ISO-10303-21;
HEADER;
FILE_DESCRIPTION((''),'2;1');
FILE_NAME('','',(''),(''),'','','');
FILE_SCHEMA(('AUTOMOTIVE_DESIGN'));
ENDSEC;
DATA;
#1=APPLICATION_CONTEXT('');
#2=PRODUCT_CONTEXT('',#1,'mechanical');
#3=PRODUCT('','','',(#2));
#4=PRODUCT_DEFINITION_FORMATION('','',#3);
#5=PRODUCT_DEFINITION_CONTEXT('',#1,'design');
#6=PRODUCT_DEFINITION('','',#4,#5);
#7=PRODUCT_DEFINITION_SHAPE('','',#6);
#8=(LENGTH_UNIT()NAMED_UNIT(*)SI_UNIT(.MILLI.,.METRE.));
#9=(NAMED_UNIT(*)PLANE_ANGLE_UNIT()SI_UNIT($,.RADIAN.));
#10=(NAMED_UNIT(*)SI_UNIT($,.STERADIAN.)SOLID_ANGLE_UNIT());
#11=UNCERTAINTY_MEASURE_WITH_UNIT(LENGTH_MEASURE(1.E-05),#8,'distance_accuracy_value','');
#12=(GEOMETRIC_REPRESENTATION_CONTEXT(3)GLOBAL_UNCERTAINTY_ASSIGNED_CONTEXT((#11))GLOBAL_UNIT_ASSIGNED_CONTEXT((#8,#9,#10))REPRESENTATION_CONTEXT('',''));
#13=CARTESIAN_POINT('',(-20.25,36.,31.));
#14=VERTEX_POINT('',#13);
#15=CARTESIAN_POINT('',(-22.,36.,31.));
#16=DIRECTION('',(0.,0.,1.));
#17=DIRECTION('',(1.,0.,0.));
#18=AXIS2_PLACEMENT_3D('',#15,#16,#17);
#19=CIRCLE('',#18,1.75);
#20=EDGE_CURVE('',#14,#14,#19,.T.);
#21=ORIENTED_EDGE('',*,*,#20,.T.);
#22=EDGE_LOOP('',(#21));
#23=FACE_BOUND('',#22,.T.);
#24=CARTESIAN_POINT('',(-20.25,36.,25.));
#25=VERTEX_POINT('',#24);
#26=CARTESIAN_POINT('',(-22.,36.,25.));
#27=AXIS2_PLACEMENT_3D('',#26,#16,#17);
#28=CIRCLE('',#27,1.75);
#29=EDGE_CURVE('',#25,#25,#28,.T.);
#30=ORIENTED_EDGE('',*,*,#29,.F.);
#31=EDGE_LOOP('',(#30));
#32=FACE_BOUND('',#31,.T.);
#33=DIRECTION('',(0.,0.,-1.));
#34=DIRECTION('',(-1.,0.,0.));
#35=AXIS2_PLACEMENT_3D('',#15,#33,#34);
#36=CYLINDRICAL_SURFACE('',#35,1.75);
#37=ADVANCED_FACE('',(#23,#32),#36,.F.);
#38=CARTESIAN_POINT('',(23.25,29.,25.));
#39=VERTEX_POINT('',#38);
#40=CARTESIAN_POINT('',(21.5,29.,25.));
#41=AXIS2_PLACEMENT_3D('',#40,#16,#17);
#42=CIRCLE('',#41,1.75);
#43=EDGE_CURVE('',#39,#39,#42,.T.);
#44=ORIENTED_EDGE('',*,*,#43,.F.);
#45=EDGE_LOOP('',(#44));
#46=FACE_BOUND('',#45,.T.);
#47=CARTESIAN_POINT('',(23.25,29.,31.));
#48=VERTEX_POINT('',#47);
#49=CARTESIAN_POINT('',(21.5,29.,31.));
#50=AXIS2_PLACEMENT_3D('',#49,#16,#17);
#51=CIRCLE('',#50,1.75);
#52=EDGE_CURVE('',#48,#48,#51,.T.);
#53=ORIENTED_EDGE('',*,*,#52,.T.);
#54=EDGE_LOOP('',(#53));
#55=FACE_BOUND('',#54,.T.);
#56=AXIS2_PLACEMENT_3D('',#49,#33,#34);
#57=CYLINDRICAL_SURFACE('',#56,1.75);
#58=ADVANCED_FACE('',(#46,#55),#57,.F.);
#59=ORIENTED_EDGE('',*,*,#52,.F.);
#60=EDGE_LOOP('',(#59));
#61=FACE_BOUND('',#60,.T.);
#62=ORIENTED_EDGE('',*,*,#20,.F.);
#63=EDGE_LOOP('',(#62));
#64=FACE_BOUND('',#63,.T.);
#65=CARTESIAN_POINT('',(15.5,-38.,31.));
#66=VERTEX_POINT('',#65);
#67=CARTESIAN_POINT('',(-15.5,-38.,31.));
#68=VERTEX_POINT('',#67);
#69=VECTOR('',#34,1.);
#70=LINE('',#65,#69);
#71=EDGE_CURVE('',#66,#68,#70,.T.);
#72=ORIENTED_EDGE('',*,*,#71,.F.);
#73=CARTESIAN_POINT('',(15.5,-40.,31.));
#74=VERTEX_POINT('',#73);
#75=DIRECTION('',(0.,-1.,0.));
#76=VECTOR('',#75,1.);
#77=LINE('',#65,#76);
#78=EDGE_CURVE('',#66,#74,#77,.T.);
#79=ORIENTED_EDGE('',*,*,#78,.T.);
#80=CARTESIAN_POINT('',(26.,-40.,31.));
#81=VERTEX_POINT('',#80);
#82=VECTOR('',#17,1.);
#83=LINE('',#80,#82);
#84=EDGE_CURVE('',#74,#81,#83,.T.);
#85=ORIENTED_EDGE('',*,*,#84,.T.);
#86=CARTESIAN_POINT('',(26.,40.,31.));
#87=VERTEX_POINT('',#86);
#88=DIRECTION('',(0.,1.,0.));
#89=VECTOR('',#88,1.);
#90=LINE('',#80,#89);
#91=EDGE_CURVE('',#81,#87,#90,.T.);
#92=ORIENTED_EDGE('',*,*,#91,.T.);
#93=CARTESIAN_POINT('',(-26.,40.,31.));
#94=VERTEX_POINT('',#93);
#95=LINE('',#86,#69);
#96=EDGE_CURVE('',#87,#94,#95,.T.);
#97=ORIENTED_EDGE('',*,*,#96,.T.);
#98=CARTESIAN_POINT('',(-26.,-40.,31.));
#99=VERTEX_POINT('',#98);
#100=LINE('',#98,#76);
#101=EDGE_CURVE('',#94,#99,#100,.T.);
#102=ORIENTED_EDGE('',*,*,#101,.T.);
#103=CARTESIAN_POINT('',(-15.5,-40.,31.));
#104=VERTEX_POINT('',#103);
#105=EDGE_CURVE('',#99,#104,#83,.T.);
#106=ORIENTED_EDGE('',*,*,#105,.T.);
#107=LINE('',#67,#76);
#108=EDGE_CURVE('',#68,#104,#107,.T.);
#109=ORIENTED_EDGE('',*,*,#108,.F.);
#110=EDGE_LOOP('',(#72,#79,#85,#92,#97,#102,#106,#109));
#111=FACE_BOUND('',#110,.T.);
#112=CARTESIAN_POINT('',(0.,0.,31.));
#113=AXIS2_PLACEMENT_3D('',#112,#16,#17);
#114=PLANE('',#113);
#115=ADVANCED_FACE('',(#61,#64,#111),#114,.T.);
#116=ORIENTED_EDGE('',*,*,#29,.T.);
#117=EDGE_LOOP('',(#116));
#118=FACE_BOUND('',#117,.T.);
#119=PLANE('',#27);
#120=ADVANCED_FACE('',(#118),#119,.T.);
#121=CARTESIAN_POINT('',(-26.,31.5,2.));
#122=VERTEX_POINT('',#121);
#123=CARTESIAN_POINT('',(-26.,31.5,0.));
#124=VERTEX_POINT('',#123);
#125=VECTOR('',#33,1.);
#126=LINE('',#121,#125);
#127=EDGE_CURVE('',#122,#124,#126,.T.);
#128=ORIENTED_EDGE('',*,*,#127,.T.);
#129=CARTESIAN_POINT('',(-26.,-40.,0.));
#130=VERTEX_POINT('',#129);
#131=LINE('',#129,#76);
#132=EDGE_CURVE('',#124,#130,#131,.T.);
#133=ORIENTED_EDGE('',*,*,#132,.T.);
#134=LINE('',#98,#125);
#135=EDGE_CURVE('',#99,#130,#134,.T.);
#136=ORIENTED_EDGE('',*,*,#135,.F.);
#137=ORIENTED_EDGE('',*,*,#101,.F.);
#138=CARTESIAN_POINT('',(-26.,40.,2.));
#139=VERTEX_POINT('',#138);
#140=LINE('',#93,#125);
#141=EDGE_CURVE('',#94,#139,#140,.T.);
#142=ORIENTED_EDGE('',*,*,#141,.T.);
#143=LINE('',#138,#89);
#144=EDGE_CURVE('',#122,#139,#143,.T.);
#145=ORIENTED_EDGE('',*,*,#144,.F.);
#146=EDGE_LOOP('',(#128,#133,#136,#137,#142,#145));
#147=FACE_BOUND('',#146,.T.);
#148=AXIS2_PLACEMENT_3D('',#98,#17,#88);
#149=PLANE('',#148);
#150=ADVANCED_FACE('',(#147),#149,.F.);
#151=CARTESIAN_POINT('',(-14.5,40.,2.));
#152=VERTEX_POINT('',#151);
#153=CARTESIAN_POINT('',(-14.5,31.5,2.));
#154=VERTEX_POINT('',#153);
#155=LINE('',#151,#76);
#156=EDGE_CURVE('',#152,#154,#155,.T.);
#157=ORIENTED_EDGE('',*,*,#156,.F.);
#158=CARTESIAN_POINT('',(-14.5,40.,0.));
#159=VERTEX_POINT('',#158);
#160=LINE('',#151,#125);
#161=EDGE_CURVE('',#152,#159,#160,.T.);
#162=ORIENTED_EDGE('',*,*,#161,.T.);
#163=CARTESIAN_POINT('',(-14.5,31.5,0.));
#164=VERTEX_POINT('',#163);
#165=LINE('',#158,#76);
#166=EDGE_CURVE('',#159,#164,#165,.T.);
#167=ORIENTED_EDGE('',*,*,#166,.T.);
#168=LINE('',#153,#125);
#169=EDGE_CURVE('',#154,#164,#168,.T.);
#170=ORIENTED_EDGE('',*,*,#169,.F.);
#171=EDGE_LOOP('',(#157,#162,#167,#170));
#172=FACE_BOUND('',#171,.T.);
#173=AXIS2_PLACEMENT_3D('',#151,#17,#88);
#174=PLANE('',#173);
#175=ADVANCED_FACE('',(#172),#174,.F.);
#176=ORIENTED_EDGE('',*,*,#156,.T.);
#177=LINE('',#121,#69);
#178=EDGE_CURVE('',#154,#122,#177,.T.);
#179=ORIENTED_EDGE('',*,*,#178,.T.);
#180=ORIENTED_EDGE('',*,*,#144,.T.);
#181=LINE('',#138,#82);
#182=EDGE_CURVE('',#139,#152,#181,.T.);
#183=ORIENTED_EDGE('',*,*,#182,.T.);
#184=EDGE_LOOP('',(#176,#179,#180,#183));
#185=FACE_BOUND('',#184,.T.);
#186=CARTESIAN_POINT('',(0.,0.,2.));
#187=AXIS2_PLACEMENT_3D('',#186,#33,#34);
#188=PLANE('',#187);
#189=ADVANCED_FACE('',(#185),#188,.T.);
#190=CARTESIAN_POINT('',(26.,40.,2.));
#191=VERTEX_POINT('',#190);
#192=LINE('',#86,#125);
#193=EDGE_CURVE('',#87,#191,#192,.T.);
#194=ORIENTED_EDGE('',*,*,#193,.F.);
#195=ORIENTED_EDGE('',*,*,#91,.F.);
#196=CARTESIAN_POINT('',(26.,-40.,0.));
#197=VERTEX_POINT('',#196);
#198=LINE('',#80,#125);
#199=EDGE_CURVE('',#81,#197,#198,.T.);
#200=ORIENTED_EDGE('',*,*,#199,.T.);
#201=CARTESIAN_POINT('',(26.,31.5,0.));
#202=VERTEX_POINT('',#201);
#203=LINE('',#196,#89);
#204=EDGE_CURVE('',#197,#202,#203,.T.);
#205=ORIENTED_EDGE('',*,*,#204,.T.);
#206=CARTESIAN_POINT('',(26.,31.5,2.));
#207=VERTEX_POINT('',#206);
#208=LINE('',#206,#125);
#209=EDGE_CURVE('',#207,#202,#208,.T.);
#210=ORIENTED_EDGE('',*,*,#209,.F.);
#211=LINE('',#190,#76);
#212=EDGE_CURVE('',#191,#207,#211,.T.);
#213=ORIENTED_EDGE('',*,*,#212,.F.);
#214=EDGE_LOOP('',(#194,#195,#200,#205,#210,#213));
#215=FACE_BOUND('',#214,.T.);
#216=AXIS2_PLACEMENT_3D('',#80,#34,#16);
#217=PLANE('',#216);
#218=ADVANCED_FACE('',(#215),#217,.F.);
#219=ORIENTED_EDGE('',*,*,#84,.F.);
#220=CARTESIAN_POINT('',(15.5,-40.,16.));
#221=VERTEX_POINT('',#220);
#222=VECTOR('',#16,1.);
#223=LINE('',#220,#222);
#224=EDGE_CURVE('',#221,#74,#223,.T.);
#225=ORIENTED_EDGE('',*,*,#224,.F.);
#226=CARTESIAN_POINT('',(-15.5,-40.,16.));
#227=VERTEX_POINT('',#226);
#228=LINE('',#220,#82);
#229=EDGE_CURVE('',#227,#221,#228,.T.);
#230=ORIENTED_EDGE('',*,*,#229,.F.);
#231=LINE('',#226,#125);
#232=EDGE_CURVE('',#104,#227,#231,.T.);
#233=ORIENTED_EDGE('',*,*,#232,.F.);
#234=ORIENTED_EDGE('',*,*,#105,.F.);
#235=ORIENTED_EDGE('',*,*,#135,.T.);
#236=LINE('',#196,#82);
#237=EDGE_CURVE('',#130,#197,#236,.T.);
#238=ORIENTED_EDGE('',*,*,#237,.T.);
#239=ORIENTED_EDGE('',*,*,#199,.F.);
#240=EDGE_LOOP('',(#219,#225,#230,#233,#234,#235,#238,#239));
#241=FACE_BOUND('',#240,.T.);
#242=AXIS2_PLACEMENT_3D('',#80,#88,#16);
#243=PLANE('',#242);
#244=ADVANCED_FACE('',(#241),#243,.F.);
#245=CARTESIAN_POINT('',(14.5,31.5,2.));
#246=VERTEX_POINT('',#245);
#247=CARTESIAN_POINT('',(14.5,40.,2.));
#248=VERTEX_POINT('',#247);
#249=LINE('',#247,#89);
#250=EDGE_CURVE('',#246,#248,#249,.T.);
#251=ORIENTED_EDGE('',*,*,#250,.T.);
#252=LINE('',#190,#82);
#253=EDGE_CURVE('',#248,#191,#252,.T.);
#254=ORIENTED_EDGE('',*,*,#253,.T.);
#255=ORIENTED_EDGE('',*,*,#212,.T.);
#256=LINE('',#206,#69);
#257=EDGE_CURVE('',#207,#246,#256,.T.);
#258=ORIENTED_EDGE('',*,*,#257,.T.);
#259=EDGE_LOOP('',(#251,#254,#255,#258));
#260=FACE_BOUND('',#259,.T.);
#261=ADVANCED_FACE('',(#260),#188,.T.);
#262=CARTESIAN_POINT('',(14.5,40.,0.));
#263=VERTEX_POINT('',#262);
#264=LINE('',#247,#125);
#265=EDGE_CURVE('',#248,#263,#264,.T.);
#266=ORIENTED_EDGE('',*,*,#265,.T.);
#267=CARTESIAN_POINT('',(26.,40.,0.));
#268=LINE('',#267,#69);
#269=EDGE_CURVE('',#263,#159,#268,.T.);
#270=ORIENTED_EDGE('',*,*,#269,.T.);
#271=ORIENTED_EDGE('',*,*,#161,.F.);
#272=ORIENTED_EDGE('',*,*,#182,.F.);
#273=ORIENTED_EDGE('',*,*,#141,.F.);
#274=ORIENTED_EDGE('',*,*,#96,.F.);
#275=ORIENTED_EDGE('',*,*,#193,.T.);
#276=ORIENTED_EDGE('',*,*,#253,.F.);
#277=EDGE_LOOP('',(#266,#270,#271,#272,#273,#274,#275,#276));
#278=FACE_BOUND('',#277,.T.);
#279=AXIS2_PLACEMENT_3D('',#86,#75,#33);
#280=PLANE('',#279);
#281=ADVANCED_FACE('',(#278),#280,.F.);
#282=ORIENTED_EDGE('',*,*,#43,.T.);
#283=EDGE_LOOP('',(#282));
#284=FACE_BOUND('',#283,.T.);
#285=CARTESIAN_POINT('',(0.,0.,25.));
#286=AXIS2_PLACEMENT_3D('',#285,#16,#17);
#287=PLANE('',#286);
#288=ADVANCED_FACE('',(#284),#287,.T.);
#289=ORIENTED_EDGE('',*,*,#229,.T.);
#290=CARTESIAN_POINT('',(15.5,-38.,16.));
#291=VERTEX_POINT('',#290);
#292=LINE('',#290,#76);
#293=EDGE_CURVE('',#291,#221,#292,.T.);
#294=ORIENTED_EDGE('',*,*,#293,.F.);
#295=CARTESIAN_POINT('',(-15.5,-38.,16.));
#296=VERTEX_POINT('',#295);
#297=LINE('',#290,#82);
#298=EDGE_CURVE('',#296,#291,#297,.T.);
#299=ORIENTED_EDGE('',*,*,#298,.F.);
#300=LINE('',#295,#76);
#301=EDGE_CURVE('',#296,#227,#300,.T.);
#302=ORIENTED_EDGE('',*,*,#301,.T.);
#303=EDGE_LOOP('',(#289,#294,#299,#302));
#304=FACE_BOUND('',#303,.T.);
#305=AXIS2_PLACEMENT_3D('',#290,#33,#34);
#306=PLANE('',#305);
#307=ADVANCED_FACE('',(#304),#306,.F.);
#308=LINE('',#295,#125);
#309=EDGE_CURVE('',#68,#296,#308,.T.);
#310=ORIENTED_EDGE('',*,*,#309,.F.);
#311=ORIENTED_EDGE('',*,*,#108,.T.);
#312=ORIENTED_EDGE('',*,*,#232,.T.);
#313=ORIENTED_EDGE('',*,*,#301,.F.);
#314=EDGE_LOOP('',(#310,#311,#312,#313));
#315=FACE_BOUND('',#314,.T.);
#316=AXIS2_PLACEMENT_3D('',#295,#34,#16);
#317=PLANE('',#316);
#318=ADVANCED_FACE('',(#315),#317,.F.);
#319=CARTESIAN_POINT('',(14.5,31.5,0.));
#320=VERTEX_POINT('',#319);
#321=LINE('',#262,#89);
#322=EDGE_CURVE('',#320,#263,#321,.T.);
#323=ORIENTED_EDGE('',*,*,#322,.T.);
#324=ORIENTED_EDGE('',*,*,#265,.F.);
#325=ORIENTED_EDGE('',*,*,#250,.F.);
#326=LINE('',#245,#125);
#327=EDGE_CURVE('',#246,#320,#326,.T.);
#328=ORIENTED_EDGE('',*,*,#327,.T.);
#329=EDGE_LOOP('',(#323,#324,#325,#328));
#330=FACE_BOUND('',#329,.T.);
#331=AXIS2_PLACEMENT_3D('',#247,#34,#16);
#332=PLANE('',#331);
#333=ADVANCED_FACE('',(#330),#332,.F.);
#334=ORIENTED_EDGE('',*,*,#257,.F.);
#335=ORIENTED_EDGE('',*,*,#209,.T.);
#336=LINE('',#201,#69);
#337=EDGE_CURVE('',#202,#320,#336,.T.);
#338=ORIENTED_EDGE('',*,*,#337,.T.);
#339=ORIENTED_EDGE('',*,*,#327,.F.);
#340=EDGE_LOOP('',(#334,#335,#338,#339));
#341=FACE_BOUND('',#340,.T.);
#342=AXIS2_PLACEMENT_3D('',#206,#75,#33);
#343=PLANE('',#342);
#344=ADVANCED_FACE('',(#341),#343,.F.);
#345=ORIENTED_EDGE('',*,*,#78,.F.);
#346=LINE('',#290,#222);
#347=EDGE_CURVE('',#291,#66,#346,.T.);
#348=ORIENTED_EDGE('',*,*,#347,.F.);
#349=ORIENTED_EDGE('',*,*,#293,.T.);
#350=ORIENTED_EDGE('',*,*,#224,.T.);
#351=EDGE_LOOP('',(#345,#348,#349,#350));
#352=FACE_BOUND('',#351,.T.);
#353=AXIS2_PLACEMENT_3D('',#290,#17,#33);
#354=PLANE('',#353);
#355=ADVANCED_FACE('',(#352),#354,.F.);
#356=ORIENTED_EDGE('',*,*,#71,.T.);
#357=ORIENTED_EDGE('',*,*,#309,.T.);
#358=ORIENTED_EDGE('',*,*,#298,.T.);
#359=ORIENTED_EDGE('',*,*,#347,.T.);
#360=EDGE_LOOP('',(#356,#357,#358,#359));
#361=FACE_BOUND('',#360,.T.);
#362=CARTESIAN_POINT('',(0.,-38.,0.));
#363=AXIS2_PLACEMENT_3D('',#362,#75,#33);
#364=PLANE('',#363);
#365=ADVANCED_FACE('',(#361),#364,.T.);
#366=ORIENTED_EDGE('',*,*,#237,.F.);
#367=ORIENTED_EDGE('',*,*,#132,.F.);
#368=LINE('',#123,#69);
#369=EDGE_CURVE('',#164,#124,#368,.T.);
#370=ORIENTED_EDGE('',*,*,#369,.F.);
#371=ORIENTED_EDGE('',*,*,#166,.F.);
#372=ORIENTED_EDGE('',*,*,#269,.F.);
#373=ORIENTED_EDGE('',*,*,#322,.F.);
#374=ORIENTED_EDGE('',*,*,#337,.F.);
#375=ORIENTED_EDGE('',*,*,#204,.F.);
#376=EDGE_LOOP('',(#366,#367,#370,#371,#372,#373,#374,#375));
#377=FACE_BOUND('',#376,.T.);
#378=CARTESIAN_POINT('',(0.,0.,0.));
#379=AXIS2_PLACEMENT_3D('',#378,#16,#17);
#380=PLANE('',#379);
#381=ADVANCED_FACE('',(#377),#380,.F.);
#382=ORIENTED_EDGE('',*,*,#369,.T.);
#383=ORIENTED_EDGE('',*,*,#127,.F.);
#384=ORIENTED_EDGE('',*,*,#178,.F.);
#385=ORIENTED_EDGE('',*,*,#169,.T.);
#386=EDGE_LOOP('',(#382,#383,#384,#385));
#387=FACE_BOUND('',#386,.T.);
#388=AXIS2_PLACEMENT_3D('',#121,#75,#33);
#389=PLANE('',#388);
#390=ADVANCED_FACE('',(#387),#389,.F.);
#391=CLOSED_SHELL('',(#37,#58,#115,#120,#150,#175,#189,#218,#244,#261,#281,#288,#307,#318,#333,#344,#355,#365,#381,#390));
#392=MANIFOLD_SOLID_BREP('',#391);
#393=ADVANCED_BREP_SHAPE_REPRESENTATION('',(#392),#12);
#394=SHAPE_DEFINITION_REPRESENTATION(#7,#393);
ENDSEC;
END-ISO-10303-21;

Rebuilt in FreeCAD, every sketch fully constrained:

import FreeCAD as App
import Part
import Sketcher

doc = App.newDocument("Part")
body = doc.addObject("PartDesign::Body", "Body")

sketch1 = body.newObject("Sketcher::SketchObject", "Sketch")
sketch1.AttachmentSupport = (doc.getObject("XY_Plane"), [""])
sketch1.MapMode = "FlatFace"
sketch1.addGeometry(Part.LineSegment(App.Vector(-26, 40, 0), App.Vector(-26, -40, 0)), False)
sketch1.addGeometry(Part.LineSegment(App.Vector(-26, -40, 0), App.Vector(26, -40, 0)), False)
sketch1.addGeometry(Part.LineSegment(App.Vector(26, -40, 0), App.Vector(26, 40, 0)), False)
sketch1.addGeometry(Part.LineSegment(App.Vector(26, 40, 0), App.Vector(-26, 40, 0)), False)
sketch1.addGeometry(Part.Circle(App.Vector(21.5, 29, 0), App.Vector(0, 0, 1), 1.8), False)
sketch1.addGeometry(Part.Circle(App.Vector(-22, 36, 0), App.Vector(0, 0, 1), 1.8), False)
sketch1.addConstraint(Sketcher.Constraint("Coincident", 0, 2, 1, 1))
sketch1.addConstraint(Sketcher.Constraint("Coincident", 1, 2, 2, 1))
sketch1.addConstraint(Sketcher.Constraint("Coincident", 2, 2, 3, 1))
sketch1.addConstraint(Sketcher.Constraint("Coincident", 3, 2, 0, 1))
sketch1.addConstraint(Sketcher.Constraint("Vertical", 0))
sketch1.addConstraint(Sketcher.Constraint("Horizontal", 1))
sketch1.addConstraint(Sketcher.Constraint("Vertical", 2))
sketch1.addConstraint(Sketcher.Constraint("Horizontal", 3))
sketch1.addConstraint(Sketcher.Constraint("Equal", 4, 5))
sketch1.addConstraint(Sketcher.Constraint("Symmetric", 0, 2, 2, 2, -1, 1))
sketch1.addConstraint(Sketcher.Constraint("Diameter", 4, 3.5))
sketch1.addConstraint(Sketcher.Constraint("DistanceX", 1, 1, 1, 2, 52.0))
sketch1.addConstraint(Sketcher.Constraint("DistanceY", 0, 2, 0, 1, 80.0))
sketch1.addConstraint(Sketcher.Constraint("DistanceY", -1, 1, 4, 3, 29.0))
sketch1.addConstraint(Sketcher.Constraint("DistanceX", 5, 3, -1, 1, 22.0))
sketch1.addConstraint(Sketcher.Constraint("DistanceY", -1, 1, 5, 3, 36.0))
sketch1.addConstraint(Sketcher.Constraint("DistanceX", -1, 1, 4, 3, 21.5))
pad1 = body.newObject("PartDesign::Pad", "Pad")
pad1.Profile = sketch1
pad1.Length = 31

sketch2 = body.newObject("Sketcher::SketchObject", "Sketch001")
sketch2.AttachmentSupport = (doc.getObject("XZ_Plane"), [""])
sketch2.MapMode = "FlatFace"
sketch2.AttachmentOffset = App.Placement(App.Vector(0, 0, 40), App.Rotation())
sketch2.addGeometry(Part.LineSegment(App.Vector(-16, 31, 0), App.Vector(-16, 16, 0)), False)
sketch2.addGeometry(Part.LineSegment(App.Vector(-16, 16, 0), App.Vector(16, 16, 0)), False)
sketch2.addGeometry(Part.LineSegment(App.Vector(16, 16, 0), App.Vector(16, 31, 0)), False)
sketch2.addGeometry(Part.LineSegment(App.Vector(16, 31, 0), App.Vector(-16, 31, 0)), False)
sketch2.addConstraint(Sketcher.Constraint("Coincident", 0, 2, 1, 1))
sketch2.addConstraint(Sketcher.Constraint("Coincident", 1, 2, 2, 1))
sketch2.addConstraint(Sketcher.Constraint("Coincident", 2, 2, 3, 1))
sketch2.addConstraint(Sketcher.Constraint("Coincident", 3, 2, 0, 1))
sketch2.addConstraint(Sketcher.Constraint("Vertical", 0))
sketch2.addConstraint(Sketcher.Constraint("Horizontal", 1))
sketch2.addConstraint(Sketcher.Constraint("Vertical", 2))
sketch2.addConstraint(Sketcher.Constraint("Horizontal", 3))
sketch2.addConstraint(Sketcher.Constraint("DistanceX", 1, 1, 1, 2, 31.0))
sketch2.addConstraint(Sketcher.Constraint("DistanceY", 0, 2, 0, 1, 15.0))
sketch2.addConstraint(Sketcher.Constraint("DistanceY", -1, 1, 0, 2, 16.0))
sketch2.addConstraint(Sketcher.Constraint("DistanceX", 0, 2, -1, 1, 15.5))
pocket1 = body.newObject("PartDesign::Pocket", "Pocket")
pocket1.Profile = sketch2
pocket1.Length = 2

sketch3 = body.newObject("Sketcher::SketchObject", "Sketch002")
sketch3.AttachmentSupport = (doc.getObject("XY_Plane"), [""])
sketch3.MapMode = "FlatFace"
sketch3.addGeometry(Part.Circle(App.Vector(21.5, 29, 0), App.Vector(0, 0, 1), 1.8), False)
sketch3.addGeometry(Part.Circle(App.Vector(-22, 36, 0), App.Vector(0, 0, 1), 1.8), False)
sketch3.addConstraint(Sketcher.Constraint("Equal", 0, 1))
sketch3.addConstraint(Sketcher.Constraint("Diameter", 0, 3.5))
sketch3.addConstraint(Sketcher.Constraint("DistanceY", -1, 1, 0, 3, 29.0))
sketch3.addConstraint(Sketcher.Constraint("DistanceX", 1, 3, -1, 1, 22.0))
sketch3.addConstraint(Sketcher.Constraint("DistanceY", -1, 1, 1, 3, 36.0))
sketch3.addConstraint(Sketcher.Constraint("DistanceX", -1, 1, 0, 3, 21.5))
pad2 = body.newObject("PartDesign::Pad", "Pad001")
pad2.Profile = sketch3
pad2.Length = 25

sketch4 = body.newObject("Sketcher::SketchObject", "Sketch003")
sketch4.AttachmentSupport = (doc.getObject("XY_Plane"), [""])
sketch4.MapMode = "FlatFace"
sketch4.addGeometry(Part.LineSegment(App.Vector(26, 40, 0), App.Vector(26, 32, 0)), False)
sketch4.addGeometry(Part.LineSegment(App.Vector(26, 32, 0), App.Vector(14, 32, 0)), False)
sketch4.addGeometry(Part.LineSegment(App.Vector(14, 32, 0), App.Vector(14, 40, 0)), False)
sketch4.addGeometry(Part.LineSegment(App.Vector(14, 40, 0), App.Vector(26, 40, 0)), False)
sketch4.addGeometry(Part.LineSegment(App.Vector(-14, 40, 0), App.Vector(-14, 32, 0)), False)
sketch4.addGeometry(Part.LineSegment(App.Vector(-14, 32, 0), App.Vector(-26, 32, 0)), False)
sketch4.addGeometry(Part.LineSegment(App.Vector(-26, 32, 0), App.Vector(-26, 40, 0)), False)
sketch4.addGeometry(Part.LineSegment(App.Vector(-26, 40, 0), App.Vector(-14, 40, 0)), False)
sketch4.addConstraint(Sketcher.Constraint("Coincident", 0, 2, 1, 1))
sketch4.addConstraint(Sketcher.Constraint("Coincident", 1, 2, 2, 1))
sketch4.addConstraint(Sketcher.Constraint("Coincident", 2, 2, 3, 1))
sketch4.addConstraint(Sketcher.Constraint("Coincident", 3, 2, 0, 1))
sketch4.addConstraint(Sketcher.Constraint("Coincident", 4, 2, 5, 1))
sketch4.addConstraint(Sketcher.Constraint("Coincident", 5, 2, 6, 1))
sketch4.addConstraint(Sketcher.Constraint("Coincident", 6, 2, 7, 1))
sketch4.addConstraint(Sketcher.Constraint("Coincident", 7, 2, 4, 1))
sketch4.addConstraint(Sketcher.Constraint("Vertical", 0))
sketch4.addConstraint(Sketcher.Constraint("Horizontal", 1))
sketch4.addConstraint(Sketcher.Constraint("Vertical", 2))
sketch4.addConstraint(Sketcher.Constraint("Horizontal", 3))
sketch4.addConstraint(Sketcher.Constraint("Vertical", 4))
sketch4.addConstraint(Sketcher.Constraint("Horizontal", 5))
sketch4.addConstraint(Sketcher.Constraint("Vertical", 6))
sketch4.addConstraint(Sketcher.Constraint("Horizontal", 7))
sketch4.addConstraint(Sketcher.Constraint("Symmetric", 1, 2, 4, 2, -2))
sketch4.addConstraint(Sketcher.Constraint("Symmetric", 3, 2, 6, 2, -2))
sketch4.addConstraint(Sketcher.Constraint("DistanceX", 1, 2, 1, 1, 11.5))
sketch4.addConstraint(Sketcher.Constraint("DistanceY", 0, 2, 0, 1, 8.5))
sketch4.addConstraint(Sketcher.Constraint("DistanceX", -1, 1, 0, 2, 26.0))
sketch4.addConstraint(Sketcher.Constraint("DistanceY", -1, 1, 2, 2, 40.0))
pocket2 = body.newObject("PartDesign::Pocket", "Pocket001")
pocket2.Profile = sketch4
pocket2.Length = 2
pocket2.Reversed = True

doc.recompute()
